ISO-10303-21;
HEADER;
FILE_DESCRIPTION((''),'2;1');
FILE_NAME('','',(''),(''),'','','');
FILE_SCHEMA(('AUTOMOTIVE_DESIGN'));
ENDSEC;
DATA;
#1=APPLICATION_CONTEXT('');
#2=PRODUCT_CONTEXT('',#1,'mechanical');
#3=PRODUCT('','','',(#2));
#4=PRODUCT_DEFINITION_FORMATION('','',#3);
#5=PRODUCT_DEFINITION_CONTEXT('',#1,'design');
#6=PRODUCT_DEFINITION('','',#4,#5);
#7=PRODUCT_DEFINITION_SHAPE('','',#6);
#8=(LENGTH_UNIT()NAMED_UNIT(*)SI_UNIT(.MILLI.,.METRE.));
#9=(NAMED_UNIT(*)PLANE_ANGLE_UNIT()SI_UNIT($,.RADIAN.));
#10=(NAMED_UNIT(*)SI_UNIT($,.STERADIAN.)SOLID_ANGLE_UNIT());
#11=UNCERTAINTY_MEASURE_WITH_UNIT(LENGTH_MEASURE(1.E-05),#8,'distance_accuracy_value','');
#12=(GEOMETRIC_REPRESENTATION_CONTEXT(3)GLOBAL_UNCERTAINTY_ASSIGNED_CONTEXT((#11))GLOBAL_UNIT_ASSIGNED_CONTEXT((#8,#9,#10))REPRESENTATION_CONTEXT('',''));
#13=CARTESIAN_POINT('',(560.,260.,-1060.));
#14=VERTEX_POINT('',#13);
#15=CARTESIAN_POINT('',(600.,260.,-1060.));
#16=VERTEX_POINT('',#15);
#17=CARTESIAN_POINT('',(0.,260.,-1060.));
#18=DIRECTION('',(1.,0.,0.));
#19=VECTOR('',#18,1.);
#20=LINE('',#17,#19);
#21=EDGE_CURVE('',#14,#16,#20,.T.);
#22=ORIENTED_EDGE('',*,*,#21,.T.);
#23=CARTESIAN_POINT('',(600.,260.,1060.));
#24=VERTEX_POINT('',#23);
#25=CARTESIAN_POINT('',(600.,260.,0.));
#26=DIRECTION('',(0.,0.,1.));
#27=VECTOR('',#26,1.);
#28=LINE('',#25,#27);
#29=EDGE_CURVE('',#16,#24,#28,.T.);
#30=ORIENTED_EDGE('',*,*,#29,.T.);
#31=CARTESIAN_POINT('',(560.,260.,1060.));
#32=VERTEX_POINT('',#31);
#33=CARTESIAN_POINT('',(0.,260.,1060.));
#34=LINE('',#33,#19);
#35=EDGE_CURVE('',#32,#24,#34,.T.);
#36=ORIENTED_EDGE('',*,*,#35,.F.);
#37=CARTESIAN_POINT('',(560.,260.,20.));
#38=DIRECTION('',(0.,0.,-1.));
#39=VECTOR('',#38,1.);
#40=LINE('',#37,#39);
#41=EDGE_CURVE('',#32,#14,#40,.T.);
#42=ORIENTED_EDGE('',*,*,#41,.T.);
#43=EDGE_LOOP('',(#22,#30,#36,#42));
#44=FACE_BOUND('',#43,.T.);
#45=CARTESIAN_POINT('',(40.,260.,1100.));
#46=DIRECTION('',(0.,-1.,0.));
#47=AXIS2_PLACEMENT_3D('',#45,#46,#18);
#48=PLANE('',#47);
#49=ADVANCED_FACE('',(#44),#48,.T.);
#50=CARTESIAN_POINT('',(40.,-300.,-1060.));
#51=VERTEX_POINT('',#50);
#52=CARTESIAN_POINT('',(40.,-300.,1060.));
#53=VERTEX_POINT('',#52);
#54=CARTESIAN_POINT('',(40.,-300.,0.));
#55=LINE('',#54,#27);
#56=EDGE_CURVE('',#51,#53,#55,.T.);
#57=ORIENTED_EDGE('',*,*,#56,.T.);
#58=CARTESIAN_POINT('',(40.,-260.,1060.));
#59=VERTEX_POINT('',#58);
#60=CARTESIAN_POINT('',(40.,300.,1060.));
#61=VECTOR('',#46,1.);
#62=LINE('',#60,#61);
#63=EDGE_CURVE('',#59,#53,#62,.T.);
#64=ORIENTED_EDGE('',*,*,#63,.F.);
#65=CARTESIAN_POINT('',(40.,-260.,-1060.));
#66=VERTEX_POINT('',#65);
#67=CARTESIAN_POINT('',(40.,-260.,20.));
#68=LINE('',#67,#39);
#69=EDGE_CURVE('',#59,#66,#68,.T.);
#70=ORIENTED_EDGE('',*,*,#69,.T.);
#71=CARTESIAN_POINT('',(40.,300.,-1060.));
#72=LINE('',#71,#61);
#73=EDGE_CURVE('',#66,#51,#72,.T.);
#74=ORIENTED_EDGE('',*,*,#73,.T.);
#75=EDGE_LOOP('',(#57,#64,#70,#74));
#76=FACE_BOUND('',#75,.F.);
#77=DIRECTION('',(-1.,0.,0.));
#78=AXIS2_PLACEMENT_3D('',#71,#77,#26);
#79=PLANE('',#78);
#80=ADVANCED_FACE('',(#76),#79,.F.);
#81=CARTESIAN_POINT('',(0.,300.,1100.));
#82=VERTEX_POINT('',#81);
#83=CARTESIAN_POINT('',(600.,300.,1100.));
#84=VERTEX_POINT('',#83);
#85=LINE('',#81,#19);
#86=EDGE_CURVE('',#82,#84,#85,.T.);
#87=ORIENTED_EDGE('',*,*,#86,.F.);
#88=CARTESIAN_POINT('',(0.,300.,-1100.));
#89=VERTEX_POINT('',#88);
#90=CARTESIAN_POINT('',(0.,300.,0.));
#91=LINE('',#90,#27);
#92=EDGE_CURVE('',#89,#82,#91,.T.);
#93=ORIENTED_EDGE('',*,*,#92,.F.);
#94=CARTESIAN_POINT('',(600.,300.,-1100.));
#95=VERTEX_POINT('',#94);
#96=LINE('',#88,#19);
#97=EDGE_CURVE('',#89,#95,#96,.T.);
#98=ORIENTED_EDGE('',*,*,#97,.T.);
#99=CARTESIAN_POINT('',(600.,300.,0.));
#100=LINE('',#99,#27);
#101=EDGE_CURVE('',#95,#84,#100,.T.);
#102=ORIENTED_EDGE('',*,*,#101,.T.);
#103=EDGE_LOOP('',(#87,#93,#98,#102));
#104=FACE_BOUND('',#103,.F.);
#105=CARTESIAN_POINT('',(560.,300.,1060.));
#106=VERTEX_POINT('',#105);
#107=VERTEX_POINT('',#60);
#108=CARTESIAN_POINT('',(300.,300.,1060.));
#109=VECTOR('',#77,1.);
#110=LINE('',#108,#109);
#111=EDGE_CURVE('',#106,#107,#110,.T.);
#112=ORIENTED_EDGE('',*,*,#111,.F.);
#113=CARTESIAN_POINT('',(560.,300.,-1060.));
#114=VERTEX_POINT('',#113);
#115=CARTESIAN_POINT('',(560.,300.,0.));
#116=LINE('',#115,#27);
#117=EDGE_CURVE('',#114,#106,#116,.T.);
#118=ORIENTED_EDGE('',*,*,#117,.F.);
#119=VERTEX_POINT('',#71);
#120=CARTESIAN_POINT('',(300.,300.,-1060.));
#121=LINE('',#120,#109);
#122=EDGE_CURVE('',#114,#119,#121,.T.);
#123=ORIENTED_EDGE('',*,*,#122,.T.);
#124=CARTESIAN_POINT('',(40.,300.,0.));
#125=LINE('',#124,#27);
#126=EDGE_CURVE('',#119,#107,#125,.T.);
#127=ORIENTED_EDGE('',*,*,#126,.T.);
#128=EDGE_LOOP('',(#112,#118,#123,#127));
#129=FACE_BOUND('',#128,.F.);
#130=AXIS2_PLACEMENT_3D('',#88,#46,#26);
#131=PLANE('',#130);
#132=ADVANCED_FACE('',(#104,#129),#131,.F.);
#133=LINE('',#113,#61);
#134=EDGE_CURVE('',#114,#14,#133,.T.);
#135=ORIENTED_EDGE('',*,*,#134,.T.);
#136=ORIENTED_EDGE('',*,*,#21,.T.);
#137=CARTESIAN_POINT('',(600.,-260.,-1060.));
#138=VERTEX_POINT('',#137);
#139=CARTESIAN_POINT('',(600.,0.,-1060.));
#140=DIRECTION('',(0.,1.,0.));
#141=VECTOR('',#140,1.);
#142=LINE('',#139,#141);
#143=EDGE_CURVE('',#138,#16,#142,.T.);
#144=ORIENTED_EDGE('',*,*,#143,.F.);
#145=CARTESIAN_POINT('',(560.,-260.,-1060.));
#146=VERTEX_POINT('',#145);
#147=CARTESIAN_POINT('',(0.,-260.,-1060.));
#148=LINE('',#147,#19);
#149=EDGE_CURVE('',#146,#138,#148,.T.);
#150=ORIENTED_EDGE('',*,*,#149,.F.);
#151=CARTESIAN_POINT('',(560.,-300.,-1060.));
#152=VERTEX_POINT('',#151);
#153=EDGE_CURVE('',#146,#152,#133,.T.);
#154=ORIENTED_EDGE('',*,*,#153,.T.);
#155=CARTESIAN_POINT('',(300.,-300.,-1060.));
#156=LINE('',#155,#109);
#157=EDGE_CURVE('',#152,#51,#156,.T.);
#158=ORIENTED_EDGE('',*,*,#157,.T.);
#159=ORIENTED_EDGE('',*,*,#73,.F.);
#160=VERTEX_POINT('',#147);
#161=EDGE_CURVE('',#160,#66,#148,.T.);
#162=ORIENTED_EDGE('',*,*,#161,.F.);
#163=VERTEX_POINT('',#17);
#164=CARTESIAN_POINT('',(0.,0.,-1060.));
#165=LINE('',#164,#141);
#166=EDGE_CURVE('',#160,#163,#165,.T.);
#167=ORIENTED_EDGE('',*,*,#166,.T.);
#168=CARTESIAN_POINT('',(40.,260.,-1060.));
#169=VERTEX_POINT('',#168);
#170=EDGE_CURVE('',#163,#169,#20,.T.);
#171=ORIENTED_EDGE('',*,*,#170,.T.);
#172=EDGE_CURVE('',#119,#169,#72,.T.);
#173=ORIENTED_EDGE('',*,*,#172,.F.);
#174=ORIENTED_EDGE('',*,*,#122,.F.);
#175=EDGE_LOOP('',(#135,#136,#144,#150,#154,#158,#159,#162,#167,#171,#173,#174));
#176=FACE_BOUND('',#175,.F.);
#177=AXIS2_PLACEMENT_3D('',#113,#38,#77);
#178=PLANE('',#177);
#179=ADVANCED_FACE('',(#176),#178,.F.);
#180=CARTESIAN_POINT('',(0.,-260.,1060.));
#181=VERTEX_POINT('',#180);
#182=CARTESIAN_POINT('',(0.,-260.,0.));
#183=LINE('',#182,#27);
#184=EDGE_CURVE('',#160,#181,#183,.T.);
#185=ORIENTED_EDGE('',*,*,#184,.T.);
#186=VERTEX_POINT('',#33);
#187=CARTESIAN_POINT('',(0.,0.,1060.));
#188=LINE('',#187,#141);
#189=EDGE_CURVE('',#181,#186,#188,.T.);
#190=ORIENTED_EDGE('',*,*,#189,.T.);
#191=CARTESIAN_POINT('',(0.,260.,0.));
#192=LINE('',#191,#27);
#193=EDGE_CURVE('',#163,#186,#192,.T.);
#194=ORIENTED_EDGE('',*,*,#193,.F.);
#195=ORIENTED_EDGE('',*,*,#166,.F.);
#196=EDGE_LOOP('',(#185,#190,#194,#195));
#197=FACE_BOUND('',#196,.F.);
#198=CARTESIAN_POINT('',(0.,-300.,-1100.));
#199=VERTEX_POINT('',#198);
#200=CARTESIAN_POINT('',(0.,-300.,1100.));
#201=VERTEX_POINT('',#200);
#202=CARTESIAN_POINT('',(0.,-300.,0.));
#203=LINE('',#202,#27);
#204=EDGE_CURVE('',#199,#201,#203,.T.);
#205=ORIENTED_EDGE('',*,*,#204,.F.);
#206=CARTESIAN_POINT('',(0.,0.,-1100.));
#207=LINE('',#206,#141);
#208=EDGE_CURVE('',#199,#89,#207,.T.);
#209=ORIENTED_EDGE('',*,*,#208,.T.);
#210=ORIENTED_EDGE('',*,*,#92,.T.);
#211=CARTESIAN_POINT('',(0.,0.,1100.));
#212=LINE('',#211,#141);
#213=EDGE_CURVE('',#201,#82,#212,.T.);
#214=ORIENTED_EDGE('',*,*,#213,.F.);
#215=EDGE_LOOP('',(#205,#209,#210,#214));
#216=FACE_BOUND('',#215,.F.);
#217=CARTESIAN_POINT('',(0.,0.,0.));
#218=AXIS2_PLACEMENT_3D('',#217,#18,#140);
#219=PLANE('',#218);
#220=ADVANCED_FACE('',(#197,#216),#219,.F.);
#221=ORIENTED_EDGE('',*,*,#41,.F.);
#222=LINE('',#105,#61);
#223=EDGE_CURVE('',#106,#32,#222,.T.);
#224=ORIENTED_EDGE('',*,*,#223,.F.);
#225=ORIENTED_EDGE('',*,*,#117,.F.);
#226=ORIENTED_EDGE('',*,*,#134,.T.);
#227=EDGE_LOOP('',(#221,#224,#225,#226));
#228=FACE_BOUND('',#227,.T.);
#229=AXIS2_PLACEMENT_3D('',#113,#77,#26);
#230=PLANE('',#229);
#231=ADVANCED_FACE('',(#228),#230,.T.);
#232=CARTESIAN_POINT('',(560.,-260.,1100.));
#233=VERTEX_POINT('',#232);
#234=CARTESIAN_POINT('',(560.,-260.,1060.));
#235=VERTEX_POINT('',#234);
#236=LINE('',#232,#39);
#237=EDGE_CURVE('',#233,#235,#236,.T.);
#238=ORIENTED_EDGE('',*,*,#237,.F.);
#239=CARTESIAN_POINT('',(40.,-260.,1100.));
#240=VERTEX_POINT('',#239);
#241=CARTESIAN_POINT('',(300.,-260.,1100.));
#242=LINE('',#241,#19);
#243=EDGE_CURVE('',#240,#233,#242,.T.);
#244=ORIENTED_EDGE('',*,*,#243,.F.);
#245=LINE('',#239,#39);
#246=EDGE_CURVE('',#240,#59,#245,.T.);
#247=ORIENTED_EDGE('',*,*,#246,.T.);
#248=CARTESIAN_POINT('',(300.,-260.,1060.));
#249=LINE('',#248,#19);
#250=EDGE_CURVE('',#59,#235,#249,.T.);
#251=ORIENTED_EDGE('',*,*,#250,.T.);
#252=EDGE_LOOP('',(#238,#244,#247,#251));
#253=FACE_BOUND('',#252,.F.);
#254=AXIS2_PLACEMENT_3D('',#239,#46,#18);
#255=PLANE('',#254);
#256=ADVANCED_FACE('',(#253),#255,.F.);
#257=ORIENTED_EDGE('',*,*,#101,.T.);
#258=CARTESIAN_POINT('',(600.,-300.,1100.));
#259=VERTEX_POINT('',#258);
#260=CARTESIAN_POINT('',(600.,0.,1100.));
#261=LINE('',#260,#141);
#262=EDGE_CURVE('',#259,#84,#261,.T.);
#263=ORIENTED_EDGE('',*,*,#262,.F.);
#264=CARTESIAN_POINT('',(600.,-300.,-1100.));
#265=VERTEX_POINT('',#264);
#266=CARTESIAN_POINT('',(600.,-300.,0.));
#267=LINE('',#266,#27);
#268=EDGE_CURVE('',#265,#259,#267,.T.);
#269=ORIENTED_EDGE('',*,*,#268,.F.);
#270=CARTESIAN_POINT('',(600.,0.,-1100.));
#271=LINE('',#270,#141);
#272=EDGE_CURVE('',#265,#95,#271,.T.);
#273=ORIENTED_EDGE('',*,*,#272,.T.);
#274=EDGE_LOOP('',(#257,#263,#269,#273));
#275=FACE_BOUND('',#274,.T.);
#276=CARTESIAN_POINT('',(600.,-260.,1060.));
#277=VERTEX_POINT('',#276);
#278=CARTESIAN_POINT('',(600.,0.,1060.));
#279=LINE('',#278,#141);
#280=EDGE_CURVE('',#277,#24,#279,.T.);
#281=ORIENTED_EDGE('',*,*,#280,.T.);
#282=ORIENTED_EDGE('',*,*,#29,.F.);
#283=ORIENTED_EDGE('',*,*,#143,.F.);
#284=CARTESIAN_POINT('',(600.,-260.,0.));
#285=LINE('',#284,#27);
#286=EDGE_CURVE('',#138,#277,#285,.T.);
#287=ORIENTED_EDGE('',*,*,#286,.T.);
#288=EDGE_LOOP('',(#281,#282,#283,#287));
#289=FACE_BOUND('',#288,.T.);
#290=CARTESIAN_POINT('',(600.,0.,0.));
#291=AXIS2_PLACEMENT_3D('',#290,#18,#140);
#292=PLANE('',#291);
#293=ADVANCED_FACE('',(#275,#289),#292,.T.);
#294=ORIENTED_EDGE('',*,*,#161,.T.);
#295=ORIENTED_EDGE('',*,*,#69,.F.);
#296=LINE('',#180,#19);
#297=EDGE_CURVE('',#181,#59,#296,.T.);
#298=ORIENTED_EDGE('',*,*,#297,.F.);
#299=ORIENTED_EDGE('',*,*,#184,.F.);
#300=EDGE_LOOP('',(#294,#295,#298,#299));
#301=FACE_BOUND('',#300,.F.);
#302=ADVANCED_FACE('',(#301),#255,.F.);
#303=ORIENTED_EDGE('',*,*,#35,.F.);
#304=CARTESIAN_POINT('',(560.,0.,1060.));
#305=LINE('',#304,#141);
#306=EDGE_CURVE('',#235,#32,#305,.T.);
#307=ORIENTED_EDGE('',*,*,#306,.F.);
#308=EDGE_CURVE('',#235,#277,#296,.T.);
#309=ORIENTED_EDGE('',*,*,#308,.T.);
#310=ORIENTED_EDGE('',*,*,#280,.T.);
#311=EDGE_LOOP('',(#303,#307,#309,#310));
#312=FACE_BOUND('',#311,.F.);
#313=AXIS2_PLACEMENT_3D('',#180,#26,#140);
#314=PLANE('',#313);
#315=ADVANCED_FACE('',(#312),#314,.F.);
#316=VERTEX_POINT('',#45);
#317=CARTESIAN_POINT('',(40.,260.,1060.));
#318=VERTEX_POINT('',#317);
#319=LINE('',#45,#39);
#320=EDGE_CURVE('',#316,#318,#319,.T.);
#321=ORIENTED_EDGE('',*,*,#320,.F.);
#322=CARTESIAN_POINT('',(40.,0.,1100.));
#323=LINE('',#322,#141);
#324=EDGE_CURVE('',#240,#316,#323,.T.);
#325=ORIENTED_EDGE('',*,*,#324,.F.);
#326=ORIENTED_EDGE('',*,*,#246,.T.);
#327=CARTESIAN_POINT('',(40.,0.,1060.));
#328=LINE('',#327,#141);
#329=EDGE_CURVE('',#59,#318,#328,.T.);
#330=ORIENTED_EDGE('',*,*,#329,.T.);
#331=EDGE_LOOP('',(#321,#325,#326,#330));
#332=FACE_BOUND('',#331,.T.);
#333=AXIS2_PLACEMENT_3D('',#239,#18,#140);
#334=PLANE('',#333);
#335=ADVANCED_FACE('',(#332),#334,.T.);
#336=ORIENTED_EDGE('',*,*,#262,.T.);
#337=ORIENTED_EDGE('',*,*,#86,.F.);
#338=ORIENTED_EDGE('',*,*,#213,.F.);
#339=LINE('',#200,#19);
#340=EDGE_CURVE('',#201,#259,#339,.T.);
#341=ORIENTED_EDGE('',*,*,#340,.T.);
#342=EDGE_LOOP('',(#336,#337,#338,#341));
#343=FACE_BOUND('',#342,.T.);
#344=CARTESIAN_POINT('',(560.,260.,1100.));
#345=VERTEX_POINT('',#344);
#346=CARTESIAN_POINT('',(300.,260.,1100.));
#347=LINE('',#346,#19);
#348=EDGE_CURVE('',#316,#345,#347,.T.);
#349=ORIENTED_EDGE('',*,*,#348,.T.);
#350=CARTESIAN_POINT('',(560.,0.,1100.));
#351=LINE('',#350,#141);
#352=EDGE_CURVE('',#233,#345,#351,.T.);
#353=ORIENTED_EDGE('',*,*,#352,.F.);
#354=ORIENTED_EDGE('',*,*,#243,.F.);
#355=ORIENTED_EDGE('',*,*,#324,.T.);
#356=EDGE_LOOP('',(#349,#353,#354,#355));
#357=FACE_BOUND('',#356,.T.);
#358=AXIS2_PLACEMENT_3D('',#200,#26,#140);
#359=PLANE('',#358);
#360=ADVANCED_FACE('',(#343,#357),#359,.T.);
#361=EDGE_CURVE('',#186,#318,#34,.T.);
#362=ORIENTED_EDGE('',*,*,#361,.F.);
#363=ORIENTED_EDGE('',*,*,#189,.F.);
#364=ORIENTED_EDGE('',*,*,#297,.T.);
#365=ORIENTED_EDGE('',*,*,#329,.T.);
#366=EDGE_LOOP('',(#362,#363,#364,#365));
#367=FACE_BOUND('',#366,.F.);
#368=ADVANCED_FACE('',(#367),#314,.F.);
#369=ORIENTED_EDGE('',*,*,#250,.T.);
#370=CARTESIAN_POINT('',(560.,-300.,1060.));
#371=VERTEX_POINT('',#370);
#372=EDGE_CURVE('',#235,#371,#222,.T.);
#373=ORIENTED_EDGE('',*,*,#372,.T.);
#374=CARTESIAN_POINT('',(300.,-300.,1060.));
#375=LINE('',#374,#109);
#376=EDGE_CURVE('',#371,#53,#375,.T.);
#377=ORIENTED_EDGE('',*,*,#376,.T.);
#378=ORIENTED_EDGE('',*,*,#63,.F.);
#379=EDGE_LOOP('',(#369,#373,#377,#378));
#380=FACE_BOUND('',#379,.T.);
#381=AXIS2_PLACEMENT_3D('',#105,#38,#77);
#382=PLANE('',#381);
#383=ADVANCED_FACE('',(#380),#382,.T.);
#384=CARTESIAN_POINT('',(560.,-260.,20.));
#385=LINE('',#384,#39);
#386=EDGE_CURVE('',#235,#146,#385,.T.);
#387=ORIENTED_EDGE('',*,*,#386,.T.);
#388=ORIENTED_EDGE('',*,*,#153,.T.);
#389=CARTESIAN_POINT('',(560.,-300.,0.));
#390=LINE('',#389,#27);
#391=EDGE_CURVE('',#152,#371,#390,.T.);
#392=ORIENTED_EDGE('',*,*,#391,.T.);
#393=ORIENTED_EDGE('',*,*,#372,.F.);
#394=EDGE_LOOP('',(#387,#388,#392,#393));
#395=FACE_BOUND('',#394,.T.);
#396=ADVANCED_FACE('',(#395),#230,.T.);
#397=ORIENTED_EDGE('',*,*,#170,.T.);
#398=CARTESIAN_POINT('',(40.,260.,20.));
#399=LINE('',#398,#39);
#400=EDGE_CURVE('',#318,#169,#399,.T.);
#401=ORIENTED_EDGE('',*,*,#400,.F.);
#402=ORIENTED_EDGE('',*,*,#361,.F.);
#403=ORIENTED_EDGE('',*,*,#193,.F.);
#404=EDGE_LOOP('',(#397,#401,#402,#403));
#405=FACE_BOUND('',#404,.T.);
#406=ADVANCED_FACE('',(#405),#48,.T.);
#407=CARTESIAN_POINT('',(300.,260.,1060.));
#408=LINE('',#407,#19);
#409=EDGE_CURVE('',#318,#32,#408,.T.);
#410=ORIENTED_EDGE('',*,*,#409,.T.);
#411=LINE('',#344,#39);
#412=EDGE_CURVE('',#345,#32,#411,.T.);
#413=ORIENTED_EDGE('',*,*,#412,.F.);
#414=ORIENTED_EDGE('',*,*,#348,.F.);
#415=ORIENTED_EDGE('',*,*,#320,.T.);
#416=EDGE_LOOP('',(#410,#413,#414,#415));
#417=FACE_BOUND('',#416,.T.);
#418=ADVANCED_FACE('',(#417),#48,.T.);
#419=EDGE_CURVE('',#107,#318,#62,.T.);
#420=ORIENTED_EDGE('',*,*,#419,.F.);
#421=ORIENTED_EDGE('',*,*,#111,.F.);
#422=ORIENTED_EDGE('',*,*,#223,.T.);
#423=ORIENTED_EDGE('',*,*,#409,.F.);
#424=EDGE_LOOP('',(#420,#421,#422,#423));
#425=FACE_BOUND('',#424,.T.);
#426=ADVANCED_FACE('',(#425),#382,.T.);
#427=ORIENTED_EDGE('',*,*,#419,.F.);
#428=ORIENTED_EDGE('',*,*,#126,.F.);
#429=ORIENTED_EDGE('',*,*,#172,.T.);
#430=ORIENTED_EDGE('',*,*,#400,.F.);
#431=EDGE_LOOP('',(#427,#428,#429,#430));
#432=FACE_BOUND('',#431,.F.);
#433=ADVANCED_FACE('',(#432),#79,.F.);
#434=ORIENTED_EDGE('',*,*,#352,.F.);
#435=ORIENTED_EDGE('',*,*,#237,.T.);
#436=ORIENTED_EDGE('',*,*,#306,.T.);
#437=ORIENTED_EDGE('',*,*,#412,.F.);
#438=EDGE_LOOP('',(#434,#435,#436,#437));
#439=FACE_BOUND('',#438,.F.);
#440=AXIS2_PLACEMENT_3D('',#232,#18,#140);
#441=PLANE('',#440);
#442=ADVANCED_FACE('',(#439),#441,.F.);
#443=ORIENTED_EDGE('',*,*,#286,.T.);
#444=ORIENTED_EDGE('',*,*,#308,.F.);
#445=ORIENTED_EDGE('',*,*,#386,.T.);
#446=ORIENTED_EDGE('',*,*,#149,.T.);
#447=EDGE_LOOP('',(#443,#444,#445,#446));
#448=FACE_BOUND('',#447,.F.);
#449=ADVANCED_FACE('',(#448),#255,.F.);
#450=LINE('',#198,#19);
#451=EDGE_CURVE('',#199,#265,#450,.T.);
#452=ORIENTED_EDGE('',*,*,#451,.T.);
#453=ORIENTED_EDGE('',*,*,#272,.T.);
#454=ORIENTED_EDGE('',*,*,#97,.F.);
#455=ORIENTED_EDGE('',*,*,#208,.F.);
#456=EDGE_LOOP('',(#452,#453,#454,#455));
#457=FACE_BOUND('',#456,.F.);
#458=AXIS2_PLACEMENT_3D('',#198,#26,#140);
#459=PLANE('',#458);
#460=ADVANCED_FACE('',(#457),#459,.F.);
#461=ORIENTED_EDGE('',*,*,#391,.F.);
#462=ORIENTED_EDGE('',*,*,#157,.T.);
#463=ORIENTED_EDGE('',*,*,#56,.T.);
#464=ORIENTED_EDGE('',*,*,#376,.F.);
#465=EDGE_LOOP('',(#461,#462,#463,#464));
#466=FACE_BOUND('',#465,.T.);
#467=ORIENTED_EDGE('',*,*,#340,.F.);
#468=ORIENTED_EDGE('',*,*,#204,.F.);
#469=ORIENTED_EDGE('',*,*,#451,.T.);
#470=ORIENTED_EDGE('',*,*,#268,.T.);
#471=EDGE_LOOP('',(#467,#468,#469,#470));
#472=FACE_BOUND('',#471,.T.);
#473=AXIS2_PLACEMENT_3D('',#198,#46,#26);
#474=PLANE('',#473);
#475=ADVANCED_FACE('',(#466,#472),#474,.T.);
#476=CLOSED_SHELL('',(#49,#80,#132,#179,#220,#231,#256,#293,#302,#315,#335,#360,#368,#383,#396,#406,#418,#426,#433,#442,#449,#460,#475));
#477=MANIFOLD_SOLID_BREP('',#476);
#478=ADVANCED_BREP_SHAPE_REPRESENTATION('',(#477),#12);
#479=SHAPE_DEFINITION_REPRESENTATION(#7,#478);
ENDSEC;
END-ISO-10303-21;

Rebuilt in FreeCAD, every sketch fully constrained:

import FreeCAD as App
import Part
import Sketcher

V = App.Vector


def add_polygon(sketch, points):
    """Adds a closed chain of lines whose ends are joined by coincident constraints."""
    first, n = sketch.GeometryCount, len(points)
    for a, b in zip(points, points[1:] + points[:1]):
        sketch.addGeometry(Part.LineSegment(App.Vector(*a, 0), App.Vector(*b, 0)), False)
    for i in range(n):
        sketch.addConstraint(Sketcher.Constraint("Coincident", first + i, 2, first + (i + 1) % n, 1))

doc = App.newDocument("Part")
body = doc.addObject("PartDesign::Body", "Body")

# Sketch on YZ plane
sketch1 = body.newObject("Sketcher::SketchObject", "Sketch")
sketch1.AttachmentSupport = (doc.getObject("YZ_Plane"), [""])
sketch1.MapMode = "FlatFace"
add_polygon(sketch1, [(-300, 1100), (-300, -1100), (300, -1100), (300, 1100)])  # lines 0-3
add_polygon(sketch1, [(260, -1060), (-260, -1060), (-260, 1060), (260, 1060)])  # lines 4-7
sketch1.addConstraint(Sketcher.Constraint("Vertical", 0))
sketch1.addConstraint(Sketcher.Constraint("Horizontal", 1))
sketch1.addConstraint(Sketcher.Constraint("Vertical", 2))
sketch1.addConstraint(Sketcher.Constraint("Horizontal", 3))
sketch1.addConstraint(Sketcher.Constraint("Horizontal", 4))
sketch1.addConstraint(Sketcher.Constraint("Vertical", 5))
sketch1.addConstraint(Sketcher.Constraint("Horizontal", 6))
sketch1.addConstraint(Sketcher.Constraint("Vertical", 7))
sketch1.addConstraint(Sketcher.Constraint("Symmetric", 0, 2, 2, 2, -1, 1))
sketch1.addConstraint(Sketcher.Constraint("Symmetric", 4, 2, 6, 2, -1, 1))
sketch1.addConstraint(Sketcher.Constraint("DistanceX", 1, 1, 1, 2, 600.0))
sketch1.addConstraint(Sketcher.Constraint("DistanceX", 4, 2, 4, 1, 520.0))
sketch1.addConstraint(Sketcher.Constraint("DistanceY", 0, 2, 0, 1, 2200.0))
sketch1.addConstraint(Sketcher.Constraint("DistanceY", 5, 1, 5, 2, 2120.0))
pad1 = body.newObject("PartDesign::Pad", "Pad")
pad1.Profile = sketch1
pad1.Length = 600

# Sketch on XY plane
sketch2 = body.newObject("Sketcher::SketchObject", "Sketch001")
sketch2.AttachmentSupport = (doc.getObject("XY_Plane"), [""])
sketch2.MapMode = "FlatFace"
sketch2.AttachmentOffset = App.Placement(V(0, 0, 1100), App.Rotation())
add_polygon(sketch2, [(40, 260), (40, -260), (560, -260), (560, 260)])  # lines 0-3
sketch2.addConstraint(Sketcher.Constraint("Vertical", 0))
sketch2.addConstraint(Sketcher.Constraint("Horizontal", 1))
sketch2.addConstraint(Sketcher.Constraint("Vertical", 2))
sketch2.addConstraint(Sketcher.Constraint("Horizontal", 3))
sketch2.addConstraint(Sketcher.Constraint("Equal", 3, 0))
sketch2.addConstraint(Sketcher.Constraint("DistanceX", 1, 1, 1, 2, 520.0))
sketch2.addConstraint(Sketcher.Constraint("DistanceX", -1, 1, 0, 2, 40.0))
sketch2.addConstraint(Sketcher.Constraint("DistanceY", 0, 2, -1, 1, 260.0))
pocket1 = body.newObject("PartDesign::Pocket", "Pocket")
pocket1.Profile = sketch2
pocket1.Length = 40

# Sketch on XZ plane
sketch3 = body.newObject("Sketcher::SketchObject", "Sketch002")
sketch3.AttachmentSupport = (doc.getObject("XZ_Plane"), [""])
sketch3.MapMode = "FlatFace"
sketch3.AttachmentOffset = App.Placement(V(0, 0, -300), App.Rotation())
add_polygon(sketch3, [(560, 1060), (560, -1060), (40, -1060), (40, 1060)])  # lines 0-3
sketch3.addConstraint(Sketcher.Constraint("Vertical", 0))
sketch3.addConstraint(Sketcher.Constraint("Horizontal", 1))
sketch3.addConstraint(Sketcher.Constraint("Vertical", 2))
sketch3.addConstraint(Sketcher.Constraint("Horizontal", 3))
sketch3.addConstraint(Sketcher.Constraint("DistanceX", 1, 2, 1, 1, 520.0))
sketch3.addConstraint(Sketcher.Constraint("DistanceY", 0, 2, 0, 1, 2120.0))
sketch3.addConstraint(Sketcher.Constraint("DistanceX", -1, 1, 0, 2, 560.0))
sketch3.addConstraint(Sketcher.Constraint("DistanceY", 0, 2, -1, 1, 1060.0))
pocket2 = body.newObject("PartDesign::Pocket", "Pocket001")
pocket2.Profile = sketch3
pocket2.Type = "ThroughAll"
pocket2.Reversed = True

doc.recompute()
